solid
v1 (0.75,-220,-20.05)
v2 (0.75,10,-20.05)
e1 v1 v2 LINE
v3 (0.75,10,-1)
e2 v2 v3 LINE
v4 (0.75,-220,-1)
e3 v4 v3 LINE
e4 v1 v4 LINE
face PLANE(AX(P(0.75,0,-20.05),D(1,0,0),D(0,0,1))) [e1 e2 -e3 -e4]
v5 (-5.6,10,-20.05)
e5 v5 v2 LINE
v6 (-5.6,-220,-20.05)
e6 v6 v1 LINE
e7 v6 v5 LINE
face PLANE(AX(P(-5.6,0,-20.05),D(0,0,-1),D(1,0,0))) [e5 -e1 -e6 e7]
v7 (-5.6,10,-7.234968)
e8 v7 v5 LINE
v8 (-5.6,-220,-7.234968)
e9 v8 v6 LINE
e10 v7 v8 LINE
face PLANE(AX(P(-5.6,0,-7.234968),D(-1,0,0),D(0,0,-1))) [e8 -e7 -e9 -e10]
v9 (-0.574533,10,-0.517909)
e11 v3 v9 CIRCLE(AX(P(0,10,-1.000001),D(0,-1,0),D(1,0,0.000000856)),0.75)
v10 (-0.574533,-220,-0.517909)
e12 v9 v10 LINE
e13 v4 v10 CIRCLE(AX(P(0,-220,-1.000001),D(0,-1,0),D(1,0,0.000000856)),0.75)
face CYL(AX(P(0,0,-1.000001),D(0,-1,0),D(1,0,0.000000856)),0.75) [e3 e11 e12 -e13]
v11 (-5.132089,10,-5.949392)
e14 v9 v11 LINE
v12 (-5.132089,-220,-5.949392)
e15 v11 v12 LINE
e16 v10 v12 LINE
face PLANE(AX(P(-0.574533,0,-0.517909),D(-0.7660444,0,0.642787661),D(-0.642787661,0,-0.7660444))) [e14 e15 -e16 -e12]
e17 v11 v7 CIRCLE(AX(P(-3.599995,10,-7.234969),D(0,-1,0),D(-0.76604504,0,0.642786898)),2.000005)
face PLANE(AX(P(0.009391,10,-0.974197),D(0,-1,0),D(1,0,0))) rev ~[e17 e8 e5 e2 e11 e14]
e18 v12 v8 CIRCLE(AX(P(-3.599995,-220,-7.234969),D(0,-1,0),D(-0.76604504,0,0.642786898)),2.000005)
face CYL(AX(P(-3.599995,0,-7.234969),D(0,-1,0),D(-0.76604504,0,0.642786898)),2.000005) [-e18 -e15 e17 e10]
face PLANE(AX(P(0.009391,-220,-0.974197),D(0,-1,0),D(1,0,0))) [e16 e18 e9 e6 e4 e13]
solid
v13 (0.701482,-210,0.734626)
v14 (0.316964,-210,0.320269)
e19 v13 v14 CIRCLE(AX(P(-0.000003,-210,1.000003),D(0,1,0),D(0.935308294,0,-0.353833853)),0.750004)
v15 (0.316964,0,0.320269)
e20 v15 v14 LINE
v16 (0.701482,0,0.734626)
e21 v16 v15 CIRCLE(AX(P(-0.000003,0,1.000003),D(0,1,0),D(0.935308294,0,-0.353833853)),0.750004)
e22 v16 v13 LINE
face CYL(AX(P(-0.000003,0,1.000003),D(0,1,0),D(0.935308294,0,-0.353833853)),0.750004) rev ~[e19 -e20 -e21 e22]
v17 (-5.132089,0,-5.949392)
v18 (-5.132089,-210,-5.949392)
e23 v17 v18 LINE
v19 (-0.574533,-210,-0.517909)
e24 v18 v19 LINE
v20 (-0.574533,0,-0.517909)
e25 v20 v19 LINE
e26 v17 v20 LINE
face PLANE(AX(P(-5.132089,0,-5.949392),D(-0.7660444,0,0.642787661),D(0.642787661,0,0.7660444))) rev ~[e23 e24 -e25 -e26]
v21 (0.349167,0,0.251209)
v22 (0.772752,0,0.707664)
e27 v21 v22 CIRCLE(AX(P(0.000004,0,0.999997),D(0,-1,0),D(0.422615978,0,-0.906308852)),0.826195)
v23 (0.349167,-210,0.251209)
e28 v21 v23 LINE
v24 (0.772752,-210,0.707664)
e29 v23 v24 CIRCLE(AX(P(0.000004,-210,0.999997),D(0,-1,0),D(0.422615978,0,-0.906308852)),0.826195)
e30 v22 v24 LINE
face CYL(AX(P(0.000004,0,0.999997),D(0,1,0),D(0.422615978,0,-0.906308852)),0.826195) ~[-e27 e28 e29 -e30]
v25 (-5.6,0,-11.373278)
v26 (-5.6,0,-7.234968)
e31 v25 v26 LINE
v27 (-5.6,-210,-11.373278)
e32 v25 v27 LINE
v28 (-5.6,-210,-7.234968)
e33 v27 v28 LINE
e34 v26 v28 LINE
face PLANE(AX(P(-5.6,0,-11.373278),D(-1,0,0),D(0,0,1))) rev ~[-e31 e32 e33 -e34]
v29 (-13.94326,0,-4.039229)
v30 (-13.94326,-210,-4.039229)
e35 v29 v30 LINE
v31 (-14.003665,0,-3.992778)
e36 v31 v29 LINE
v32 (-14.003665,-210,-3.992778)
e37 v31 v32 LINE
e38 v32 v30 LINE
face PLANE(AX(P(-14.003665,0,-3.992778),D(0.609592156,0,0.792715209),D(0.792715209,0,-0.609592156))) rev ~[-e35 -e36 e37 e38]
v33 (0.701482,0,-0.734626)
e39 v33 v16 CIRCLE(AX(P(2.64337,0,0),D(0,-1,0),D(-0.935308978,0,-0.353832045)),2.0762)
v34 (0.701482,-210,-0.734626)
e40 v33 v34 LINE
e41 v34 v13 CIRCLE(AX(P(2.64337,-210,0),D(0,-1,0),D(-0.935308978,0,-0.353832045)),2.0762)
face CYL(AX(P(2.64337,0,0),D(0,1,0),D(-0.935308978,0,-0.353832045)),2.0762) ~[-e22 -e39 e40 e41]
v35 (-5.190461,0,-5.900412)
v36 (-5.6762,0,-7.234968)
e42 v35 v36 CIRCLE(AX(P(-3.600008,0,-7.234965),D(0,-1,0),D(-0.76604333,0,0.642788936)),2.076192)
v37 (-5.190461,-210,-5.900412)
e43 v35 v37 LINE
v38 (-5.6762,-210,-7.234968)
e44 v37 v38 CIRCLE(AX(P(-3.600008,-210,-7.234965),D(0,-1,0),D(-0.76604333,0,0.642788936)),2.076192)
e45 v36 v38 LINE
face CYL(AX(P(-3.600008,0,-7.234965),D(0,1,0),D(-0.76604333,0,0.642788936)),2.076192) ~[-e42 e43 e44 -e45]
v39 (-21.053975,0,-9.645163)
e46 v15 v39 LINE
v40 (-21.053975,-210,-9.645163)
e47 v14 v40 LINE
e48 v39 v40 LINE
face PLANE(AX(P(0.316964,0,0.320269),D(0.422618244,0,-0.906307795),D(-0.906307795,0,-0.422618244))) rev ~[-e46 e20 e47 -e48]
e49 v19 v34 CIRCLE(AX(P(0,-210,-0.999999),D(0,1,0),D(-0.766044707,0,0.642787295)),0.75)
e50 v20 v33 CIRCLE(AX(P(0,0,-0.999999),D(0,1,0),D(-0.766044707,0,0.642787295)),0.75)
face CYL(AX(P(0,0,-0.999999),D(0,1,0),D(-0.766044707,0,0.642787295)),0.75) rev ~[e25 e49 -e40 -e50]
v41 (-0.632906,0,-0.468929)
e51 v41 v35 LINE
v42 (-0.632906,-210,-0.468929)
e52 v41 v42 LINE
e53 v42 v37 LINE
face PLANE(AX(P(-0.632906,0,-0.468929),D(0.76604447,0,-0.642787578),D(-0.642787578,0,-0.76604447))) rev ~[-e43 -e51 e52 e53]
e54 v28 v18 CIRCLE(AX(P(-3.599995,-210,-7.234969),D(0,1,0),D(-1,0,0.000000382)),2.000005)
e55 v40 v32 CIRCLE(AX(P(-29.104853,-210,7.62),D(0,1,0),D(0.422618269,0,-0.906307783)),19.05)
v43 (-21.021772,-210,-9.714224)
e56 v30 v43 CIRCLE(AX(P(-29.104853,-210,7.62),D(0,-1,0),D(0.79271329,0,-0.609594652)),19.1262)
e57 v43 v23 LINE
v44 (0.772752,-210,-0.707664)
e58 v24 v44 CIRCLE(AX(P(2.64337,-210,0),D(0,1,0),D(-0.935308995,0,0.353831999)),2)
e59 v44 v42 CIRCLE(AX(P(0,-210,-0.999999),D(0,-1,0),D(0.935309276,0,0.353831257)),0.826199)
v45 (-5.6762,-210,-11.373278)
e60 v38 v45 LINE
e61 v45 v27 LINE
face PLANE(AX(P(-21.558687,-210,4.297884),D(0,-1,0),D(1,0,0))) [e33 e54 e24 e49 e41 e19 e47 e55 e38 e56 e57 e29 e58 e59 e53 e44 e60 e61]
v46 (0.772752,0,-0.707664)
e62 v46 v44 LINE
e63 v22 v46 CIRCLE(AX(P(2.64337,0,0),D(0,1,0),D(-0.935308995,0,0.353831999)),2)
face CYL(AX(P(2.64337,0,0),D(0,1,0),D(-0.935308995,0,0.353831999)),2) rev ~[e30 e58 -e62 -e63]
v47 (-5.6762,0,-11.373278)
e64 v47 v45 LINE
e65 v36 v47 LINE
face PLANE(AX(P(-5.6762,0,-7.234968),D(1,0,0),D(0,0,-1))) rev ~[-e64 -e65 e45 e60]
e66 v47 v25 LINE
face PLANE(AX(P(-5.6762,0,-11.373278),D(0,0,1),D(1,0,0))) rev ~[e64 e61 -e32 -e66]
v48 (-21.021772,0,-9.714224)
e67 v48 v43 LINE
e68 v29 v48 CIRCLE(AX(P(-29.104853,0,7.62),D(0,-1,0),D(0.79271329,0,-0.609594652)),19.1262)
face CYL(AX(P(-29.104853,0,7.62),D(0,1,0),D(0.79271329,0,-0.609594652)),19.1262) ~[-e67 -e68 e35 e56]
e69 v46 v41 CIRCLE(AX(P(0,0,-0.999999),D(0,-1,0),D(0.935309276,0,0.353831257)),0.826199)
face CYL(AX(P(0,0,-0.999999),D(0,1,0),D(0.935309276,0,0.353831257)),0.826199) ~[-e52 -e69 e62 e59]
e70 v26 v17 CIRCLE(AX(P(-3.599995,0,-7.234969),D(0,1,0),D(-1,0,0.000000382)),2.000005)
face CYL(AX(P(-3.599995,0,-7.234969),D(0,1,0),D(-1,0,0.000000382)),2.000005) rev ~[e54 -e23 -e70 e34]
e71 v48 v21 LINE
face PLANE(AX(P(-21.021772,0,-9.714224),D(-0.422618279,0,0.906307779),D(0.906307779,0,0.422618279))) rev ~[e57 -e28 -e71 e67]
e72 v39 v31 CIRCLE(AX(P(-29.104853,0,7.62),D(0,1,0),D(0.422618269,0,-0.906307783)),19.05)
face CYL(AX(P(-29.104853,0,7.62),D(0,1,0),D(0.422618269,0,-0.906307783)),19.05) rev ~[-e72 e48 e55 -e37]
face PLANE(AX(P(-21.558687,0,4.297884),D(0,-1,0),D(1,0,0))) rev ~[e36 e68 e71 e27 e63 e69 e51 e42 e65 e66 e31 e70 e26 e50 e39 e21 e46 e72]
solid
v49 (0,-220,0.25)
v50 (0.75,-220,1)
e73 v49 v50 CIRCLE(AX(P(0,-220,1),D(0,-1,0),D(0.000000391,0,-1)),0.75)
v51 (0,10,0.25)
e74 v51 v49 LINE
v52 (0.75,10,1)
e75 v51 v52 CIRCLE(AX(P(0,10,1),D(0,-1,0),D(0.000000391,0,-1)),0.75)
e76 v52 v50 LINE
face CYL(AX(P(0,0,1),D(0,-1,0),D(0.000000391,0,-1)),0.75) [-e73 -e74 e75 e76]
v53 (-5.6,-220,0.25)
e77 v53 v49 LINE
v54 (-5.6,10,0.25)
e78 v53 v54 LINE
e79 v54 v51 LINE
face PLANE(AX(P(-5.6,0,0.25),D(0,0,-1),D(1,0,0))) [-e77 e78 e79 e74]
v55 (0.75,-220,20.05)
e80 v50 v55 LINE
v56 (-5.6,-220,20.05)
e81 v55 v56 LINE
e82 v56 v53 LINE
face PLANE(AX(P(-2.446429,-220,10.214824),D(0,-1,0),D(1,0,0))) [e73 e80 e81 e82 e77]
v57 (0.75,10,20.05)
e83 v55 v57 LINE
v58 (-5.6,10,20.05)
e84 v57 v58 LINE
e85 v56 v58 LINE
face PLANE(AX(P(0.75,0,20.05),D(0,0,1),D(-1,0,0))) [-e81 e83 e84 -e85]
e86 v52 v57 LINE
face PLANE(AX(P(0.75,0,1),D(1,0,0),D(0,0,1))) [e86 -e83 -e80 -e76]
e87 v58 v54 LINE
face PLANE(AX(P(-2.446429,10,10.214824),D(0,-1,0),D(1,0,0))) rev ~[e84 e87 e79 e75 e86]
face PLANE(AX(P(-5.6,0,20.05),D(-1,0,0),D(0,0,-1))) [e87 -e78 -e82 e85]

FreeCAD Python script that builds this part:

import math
import FreeCAD as App
import Part
import Sketcher

V = App.Vector
Q = App.Units.Quantity

doc = App.newDocument("Part")
body = doc.addObject("PartDesign::Body", "Body")

# Sketch on XZ plane
sketch1 = body.newObject("Sketcher::SketchObject", "Sketch")
sketch1.AttachmentSupport = (doc.getObject("XZ_Plane"), [""])
sketch1.MapMode = "FlatFace"
sketch1.addGeometry([
    Part.ArcOfCircle(Part.Circle(V(0, 1, 0), V(0, 0, 1), 0.75), math.radians(-65), math.radians(-21)),  # 0
    Part.LineSegment(V(0.32, 0.32, 0), V(-21.05, -9.65, 0)),  # 1
    Part.ArcOfCircle(Part.Circle(V(-29.1, 7.62, 0), V(0, 0, 1), 19.05), math.radians(-38), math.radians(295)),  # 2
    Part.LineSegment(V(-14, -3.99, 0), V(-13.94, -4.04, 0)),  # 3
    Part.ArcOfCircle(Part.Circle(V(-29.1, 7.62, 0), V(0, 0, 1), 19.13), math.radians(-38), math.radians(295)),  # 4
    Part.LineSegment(V(-21.02, -9.71, 0), V(0.35, 0.25, 0)),  # 5
    Part.ArcOfCircle(Part.Circle(V(0, 1, 0), V(0, 0, 1), 0.83), math.radians(-65), math.radians(-21)),  # 6
    Part.ArcOfCircle(Part.Circle(V(2.64, 0, 0), V(0, 0, 1), 2), math.radians(-159), math.radians(159)),  # 7
    Part.ArcOfCircle(Part.Circle(V(0, -1, 0), V(0, 0, 1), 0.83), math.radians(21), math.radians(140)),  # 8
    Part.LineSegment(V(-0.63, -0.47, 0), V(-5.19, -5.9, 0)),  # 9
    Part.ArcOfCircle(Part.Circle(V(-3.6, -7.23, 0), V(0, 0, 1), 2.08), math.radians(140), math.radians(180)),  # 10
    Part.LineSegment(V(-5.68, -7.23, 0), V(-5.68, -11.37, 0)),  # 11
    Part.LineSegment(V(-5.68, -11.37, 0), V(-5.6, -11.37, 0)),  # 12
    Part.LineSegment(V(-5.6, -11.37, 0), V(-5.6, -7.23, 0)),  # 13
    Part.ArcOfCircle(Part.Circle(V(-3.6, -7.23, 0), V(0, 0, 1), 2), math.radians(140), math.radians(180)),  # 14
    Part.LineSegment(V(-5.13, -5.95, 0), V(-0.57, -0.52, 0)),  # 15
    Part.ArcOfCircle(Part.Circle(V(0, -1, 0), V(0, 0, 1), 0.75), math.radians(21), math.radians(140)),  # 16
    Part.ArcOfCircle(Part.Circle(V(2.64, 0, 0), V(0, 0, 1), 2.08), math.radians(-159), math.radians(159)),  # 17
], False)
sketch1.addConstraint([
    Sketcher.Constraint("Coincident", 0, 1, 1, 1),
    Sketcher.Constraint("Tangent", 1, 2, 2, 2),
    Sketcher.Constraint("Coincident", 2, 1, 3, 1),
    Sketcher.Constraint("Coincident", 3, 2, 4, 1),
    Sketcher.Constraint("Tangent", 4, 2, 5, 1),
    Sketcher.Constraint("Coincident", 5, 2, 6, 1),
    Sketcher.Constraint("Tangent", 6, 2, 7, 2),
    Sketcher.Constraint("Tangent", 7, 1, 8, 1),
    Sketcher.Constraint("Tangent", 8, 2, 9, 1),
    Sketcher.Constraint("Tangent", 9, 2, 10, 1),
    Sketcher.Constraint("Tangent", 10, 2, 11, 1),
    Sketcher.Constraint("Coincident", 11, 2, 12, 1),
    Sketcher.Constraint("Coincident", 12, 2, 13, 1),
    Sketcher.Constraint("Tangent", 13, 2, 14, 2),
    Sketcher.Constraint("Tangent", 14, 1, 15, 1),
    Sketcher.Constraint("Tangent", 15, 2, 16, 2),
    Sketcher.Constraint("Tangent", 16, 1, 17, 1),
    Sketcher.Constraint("Tangent", 17, 2, 0, 2),
    Sketcher.Constraint("Vertical", 11),
    Sketcher.Constraint("Horizontal", 12),
    Sketcher.Constraint("Vertical", 13),
    Sketcher.Constraint("Coincident", 4, 3, 2, 3),
    Sketcher.Constraint("Coincident", 6, 3, 0, 3),
    Sketcher.Constraint("Coincident", 16, 3, 8, 3),
    Sketcher.Constraint("Coincident", 17, 3, 7, 3),
    Sketcher.Constraint("Symmetric", 0, 3, 8, 3, -1, 1),
    Sketcher.Constraint("Symmetric", 6, 2, 7, 1, -1),
    Sketcher.Constraint("Parallel", 1, 5),
    Sketcher.Constraint("Parallel", 9, 15),
    Sketcher.Constraint("Horizontal", 14, 3, 10, 2),
    Sketcher.Constraint("Equal", 1, 5),
    Sketcher.Constraint("Equal", 9, 15),
    Sketcher.Constraint("Radius", 7, 2.0),
    Sketcher.Constraint("Angle", 1, Q("-155.000001 deg")),
    Sketcher.Constraint("Angle", 9, Q("-129.999998 deg")),
    Sketcher.Constraint("Radius", 2, 19.05),
    Sketcher.Constraint("Radius", 16, 0.75),
    Sketcher.Constraint("DistanceY", 8, 3, -1, 1, 0.999999),
    Sketcher.Constraint("DistanceX", 12, 2, -1, 1, 5.6),
    Sketcher.Constraint("Angle", 3, Q("-37.560019 deg")),
    Sketcher.Constraint("Radius", 4, 19.1262),
    Sketcher.Constraint("DistanceX", 14, 3, 6, 3, 3.599999),
    Sketcher.Constraint("DistanceY", -1, 1, 2, 3, 7.62),
    Sketcher.Constraint("DistanceY", 11, 2, 11, 1, 4.13831),
    Sketcher.Constraint("DistanceX", 15, 2, 5, 2, 0.9237),
    Sketcher.Constraint("DistanceY", 2, 1, -1, 1, 3.992778),
])
pad1 = body.newObject("PartDesign::Pad", "Pad")
pad1.Profile = sketch1
pad1.Length = 210
body2 = doc.addObject("PartDesign::Body", "Body001")
body2.AllowCompound = True

# Sketch on XZ plane
sketch2 = body2.newObject("Sketcher::SketchObject", "Sketch001")
sketch2.AttachmentSupport = (doc.getObject("XZ_Plane001"), [""])
sketch2.MapMode = "FlatFace"
sketch2.addGeometry([
    Part.LineSegment(V(-5.6, 0.2, 0), V(0, 0.2, 0)),  # 0
    Part.ArcOfCircle(Part.Circle(V(0, 1, 0), V(0, 0, 1), 0.8), math.radians(-90), math.radians(0)),  # 1
    Part.LineSegment(V(0.8, 1, 0), V(0.8, 20.1, 0)),  # 2
    Part.LineSegment(V(0.8, 20.1, 0), V(-5.6, 20.1, 0)),  # 3
    Part.LineSegment(V(-5.6, 20.1, 0), V(-5.6, 0.2, 0)),  # 4
    Part.ArcOfCircle(Part.Circle(V(0, -1, 0), V(0, 0, 1), 0.8), math.radians(0), math.radians(140)),  # 5
    Part.LineSegment(V(-0.6, -0.5, 0), V(-5.1, -5.9, 0)),  # 6
    Part.ArcOfCircle(Part.Circle(V(-3.6, -7.2, 0), V(0, 0, 1), 2), math.radians(140), math.radians(180)),  # 7
    Part.LineSegment(V(-5.6, -7.2, 0), V(-5.6, -20.1, 0)),  # 8
    Part.LineSegment(V(-5.6, -20.1, 0), V(0.8, -20.1, 0)),  # 9
    Part.LineSegment(V(0.8, -20.1, 0), V(0.8, -1, 0)),  # 10
], False)
sketch2.addConstraint([
    Sketcher.Constraint("Tangent", 0, 2, 1, 1),
    Sketcher.Constraint("Tangent", 1, 2, 2, 1),
    Sketcher.Constraint("Coincident", 2, 2, 3, 1),
    Sketcher.Constraint("Coincident", 3, 2, 4, 1),
    Sketcher.Constraint("Coincident", 4, 2, 0, 1),
    Sketcher.Constraint("Tangent", 5, 2, 6, 1),
    Sketcher.Constraint("Tangent", 6, 2, 7, 1),
    Sketcher.Constraint("Tangent", 7, 2, 8, 1),
    Sketcher.Constraint("Coincident", 8, 2, 9, 1),
    Sketcher.Constraint("Coincident", 9, 2, 10, 1),
    Sketcher.Constraint("Tangent", 10, 2, 5, 1),
    Sketcher.Constraint("Horizontal", 0),
    Sketcher.Constraint("Vertical", 2),
    Sketcher.Constraint("Horizontal", 3),
    Sketcher.Constraint("Vertical", 4),
    Sketcher.Constraint("Vertical", 8),
    Sketcher.Constraint("Horizontal", 9),
    Sketcher.Constraint("Vertical", 10),
    Sketcher.Constraint("Equal", 1, 5),
    Sketcher.Constraint("Symmetric", 1, 3, 5, 3, -1, 1),
    Sketcher.Constraint("Symmetric", 3, 2, 8, 2, -1),
    Sketcher.Constraint("PointOnObject", 1, 3, -2),
    Sketcher.Constraint("Angle", 6, Q("-130.000004 deg")),
    Sketcher.Constraint("Radius", 1, 0.75),
    Sketcher.Constraint("DistanceX", 0, 1, 0, 2, 5.6),
    Sketcher.Constraint("DistanceY", 4, 2, 4, 1, 19.8),
    Sketcher.Constraint("DistanceY", -1, 1, 1, 3, 1.0),
    Sketcher.Constraint("Radius", 7, 2.000005),
])
pad2 = body2.newObject("PartDesign::Pad", "Pad001")
pad2.Profile = sketch2
pad2.Type = "TwoLengths"
pad2.Length = 220
pad2.Length2 = 10

doc.recompute()
